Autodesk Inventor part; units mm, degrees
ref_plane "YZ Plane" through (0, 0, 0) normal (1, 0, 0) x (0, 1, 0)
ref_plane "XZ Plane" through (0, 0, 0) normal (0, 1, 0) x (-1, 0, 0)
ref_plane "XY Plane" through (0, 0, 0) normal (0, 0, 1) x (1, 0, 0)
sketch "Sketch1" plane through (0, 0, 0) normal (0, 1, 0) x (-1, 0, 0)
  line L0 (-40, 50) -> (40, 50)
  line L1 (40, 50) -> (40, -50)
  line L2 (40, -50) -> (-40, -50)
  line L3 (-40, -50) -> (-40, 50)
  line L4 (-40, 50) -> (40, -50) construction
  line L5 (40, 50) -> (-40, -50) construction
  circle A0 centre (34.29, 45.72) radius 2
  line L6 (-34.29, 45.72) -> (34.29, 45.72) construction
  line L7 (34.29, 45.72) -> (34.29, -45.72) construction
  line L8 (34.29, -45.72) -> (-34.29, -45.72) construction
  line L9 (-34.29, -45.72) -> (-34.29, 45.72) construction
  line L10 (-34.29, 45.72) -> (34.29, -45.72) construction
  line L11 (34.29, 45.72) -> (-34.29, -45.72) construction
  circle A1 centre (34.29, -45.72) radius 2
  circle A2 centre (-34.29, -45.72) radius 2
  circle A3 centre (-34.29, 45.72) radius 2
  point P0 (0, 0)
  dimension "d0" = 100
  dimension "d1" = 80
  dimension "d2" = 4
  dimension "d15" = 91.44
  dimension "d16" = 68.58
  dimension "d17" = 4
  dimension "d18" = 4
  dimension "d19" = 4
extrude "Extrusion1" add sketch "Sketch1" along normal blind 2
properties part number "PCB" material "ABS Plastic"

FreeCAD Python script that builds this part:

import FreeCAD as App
import Part
import Sketcher

V = App.Vector
Q = App.Units.Quantity


def add_polygon(sketch, points):
    """Adds a closed chain of lines whose ends are joined by coincident constraints."""
    first, n = sketch.GeometryCount, len(points)
    for a, b in zip(points, points[1:] + points[:1]):
        sketch.addGeometry(Part.LineSegment(App.Vector(*a, 0), App.Vector(*b, 0)), False)
    for i in range(n):
        sketch.addConstraint(Sketcher.Constraint("Coincident", first + i, 2, first + (i + 1) % n, 1))

doc = App.newDocument("Part")
params = doc.addObject("Spreadsheet::Sheet", "Params")
for row, (alias, value) in enumerate([
    ("sketch1_diameter", "4 mm"),
    ("sketch1_width", "80 mm"),
    ("sketch1_height", "100 mm"),
    ("pad1_length", "2 mm"),
], start=1):
    params.set(f"A{row}", alias)
    params.set(f"B{row}", "=" + value)
    params.setAlias(f"B{row}", alias)

body = doc.addObject("PartDesign::Body", "Body")

sketch1 = body.newObject("Sketcher::SketchObject", "Sketch")
sketch1.AttachmentSupport = (doc.getObject("XZ_Plane"), [""])
sketch1.MapMode = "FlatFace"
add_polygon(sketch1, [(-40, 50), (40, 50), (40, -50), (-40, -50)])
sketch1.addGeometry(Part.Circle(V(34.3, -45.7, 0), V(0, 0, 1), 2), False)
sketch1.addGeometry(Part.Circle(V(-34.3, -45.7, 0), V(0, 0, 1), 2), False)
sketch1.addGeometry(Part.Circle(V(34.3, 45.7, 0), V(0, 0, 1), 2), False)
sketch1.addGeometry(Part.Circle(V(-34.3, 45.7, 0), V(0, 0, 1), 2), False)
sketch1.addConstraint([
    Sketcher.Constraint("Horizontal", 0),
    Sketcher.Constraint("Vertical", 1),
    Sketcher.Constraint("Horizontal", 2),
    Sketcher.Constraint("Vertical", 3),
    Sketcher.Constraint("Equal", 4, 5),
    Sketcher.Constraint("Equal", 5, 6),
    Sketcher.Constraint("Equal", 6, 7),
    Sketcher.Constraint("Symmetric", 5, 3, 6, 3, -1, 1),
    Sketcher.Constraint("Symmetric", 4, 3, 7, 3, -1, 1),
    Sketcher.Constraint("Symmetric", 0, 2, 2, 2, -1, 1),
    Sketcher.Constraint("Symmetric", 4, 3, 5, 3, -2),
    Sketcher.Constraint("Diameter", 4, Q("4 mm")),
    Sketcher.Constraint("DistanceX", 0, 1, 0, 2, Q("80 mm")),
    Sketcher.Constraint("DistanceY", 1, 2, 1, 1, Q("100 mm")),
    Sketcher.Constraint("DistanceX", 5, 3, 4, 3, Q("68.58 mm")),
    Sketcher.Constraint("DistanceY", 4, 3, 6, 3, Q("91.44 mm")),
])
sketch1.setExpression("Constraints[15]", "Params.sketch1_diameter")
sketch1.setExpression("Constraints[16]", "Params.sketch1_width")
sketch1.setExpression("Constraints[17]", "Params.sketch1_height")
pad1 = body.newObject("PartDesign::Pad", "Pad")
pad1.Profile = sketch1
pad1.setExpression("Length", "Params.pad1_length")
pad1.Reversed = True

doc.recompute()
